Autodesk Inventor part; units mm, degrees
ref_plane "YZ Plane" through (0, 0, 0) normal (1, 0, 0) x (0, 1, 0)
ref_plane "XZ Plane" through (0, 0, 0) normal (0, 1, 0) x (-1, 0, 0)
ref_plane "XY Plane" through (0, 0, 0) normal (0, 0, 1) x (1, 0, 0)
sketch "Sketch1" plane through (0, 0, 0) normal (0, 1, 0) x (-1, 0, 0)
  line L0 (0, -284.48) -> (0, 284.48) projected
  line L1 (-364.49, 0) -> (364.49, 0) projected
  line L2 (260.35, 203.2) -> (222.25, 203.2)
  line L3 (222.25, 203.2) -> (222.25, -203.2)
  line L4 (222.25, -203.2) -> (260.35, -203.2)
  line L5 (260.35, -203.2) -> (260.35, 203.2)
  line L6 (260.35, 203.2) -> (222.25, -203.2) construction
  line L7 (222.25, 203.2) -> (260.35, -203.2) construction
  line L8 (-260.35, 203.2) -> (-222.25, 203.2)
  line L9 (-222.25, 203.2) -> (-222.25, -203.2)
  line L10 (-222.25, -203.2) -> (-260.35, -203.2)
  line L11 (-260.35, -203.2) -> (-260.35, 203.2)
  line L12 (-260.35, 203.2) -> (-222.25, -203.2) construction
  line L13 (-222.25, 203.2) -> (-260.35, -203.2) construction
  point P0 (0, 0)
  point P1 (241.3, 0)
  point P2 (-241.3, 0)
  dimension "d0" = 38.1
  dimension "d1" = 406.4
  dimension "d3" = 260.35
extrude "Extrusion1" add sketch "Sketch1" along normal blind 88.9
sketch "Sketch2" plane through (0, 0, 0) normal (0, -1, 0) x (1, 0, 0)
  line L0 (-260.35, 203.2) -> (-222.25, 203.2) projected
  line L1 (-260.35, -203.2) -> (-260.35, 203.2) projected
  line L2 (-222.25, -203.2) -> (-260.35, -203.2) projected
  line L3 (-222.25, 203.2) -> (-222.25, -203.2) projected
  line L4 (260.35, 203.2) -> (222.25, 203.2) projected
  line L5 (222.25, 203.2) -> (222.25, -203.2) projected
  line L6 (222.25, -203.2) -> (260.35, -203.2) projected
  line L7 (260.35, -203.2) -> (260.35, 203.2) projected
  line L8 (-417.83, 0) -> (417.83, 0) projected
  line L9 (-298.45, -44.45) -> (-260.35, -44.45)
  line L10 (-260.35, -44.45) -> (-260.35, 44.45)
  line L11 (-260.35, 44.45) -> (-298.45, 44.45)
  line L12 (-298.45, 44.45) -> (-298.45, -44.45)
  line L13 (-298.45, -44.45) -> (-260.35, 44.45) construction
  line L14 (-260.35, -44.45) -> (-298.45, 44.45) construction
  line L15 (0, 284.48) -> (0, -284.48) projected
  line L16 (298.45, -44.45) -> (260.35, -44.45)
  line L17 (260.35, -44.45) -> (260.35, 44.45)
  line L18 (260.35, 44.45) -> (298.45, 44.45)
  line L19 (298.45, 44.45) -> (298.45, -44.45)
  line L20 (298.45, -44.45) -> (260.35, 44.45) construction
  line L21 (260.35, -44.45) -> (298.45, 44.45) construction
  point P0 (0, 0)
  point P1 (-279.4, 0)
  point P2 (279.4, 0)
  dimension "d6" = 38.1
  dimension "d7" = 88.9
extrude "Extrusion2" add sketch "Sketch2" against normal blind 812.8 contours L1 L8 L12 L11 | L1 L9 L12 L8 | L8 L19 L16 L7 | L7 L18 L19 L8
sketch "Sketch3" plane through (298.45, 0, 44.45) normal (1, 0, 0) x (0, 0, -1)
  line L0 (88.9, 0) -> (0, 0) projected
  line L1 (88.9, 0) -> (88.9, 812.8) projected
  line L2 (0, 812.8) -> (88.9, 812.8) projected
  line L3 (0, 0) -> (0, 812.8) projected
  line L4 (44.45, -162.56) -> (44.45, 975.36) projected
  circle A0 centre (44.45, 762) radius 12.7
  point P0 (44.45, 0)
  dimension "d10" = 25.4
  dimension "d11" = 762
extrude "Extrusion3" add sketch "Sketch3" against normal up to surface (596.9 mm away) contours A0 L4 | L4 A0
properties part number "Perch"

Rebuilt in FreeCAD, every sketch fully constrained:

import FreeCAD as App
import Part
import Sketcher
Q = App.Units.Quantity


def add_polygon(sketch, points):
    """Adds a closed chain of lines whose ends are joined by coincident constraints."""
    first, n = sketch.GeometryCount, len(points)
    for a, b in zip(points, points[1:] + points[:1]):
        sketch.addGeometry(Part.LineSegment(App.Vector(*a, 0), App.Vector(*b, 0)), False)
    for i in range(n):
        sketch.addConstraint(Sketcher.Constraint("Coincident", first + i, 2, first + (i + 1) % n, 1))

doc = App.newDocument("Part")
body = doc.addObject("PartDesign::Body", "Body")
body.AllowCompound = True

# Sketch on XZ plane
sketch1 = doc.addObject("Sketcher::SketchObject", "Sketch")
body.addObject(sketch1)
sketch1.AttachmentSupport = (doc.XZ_Plane, [""])
sketch1.MapMode = "FlatFace"
add_polygon(sketch1, [(260.35, 203.2), (260.35, -203.2), (222.25, -203.2), (222.25, 203.2)])  # lines 0-3
add_polygon(sketch1, [(-222.25, 203.2), (-222.25, -203.2), (-260.35, -203.2), (-260.35, 203.2)])  # lines 4-7
sketch1.addConstraint([
    Sketcher.Constraint("Vertical", 0),
    Sketcher.Constraint("Horizontal", 1),
    Sketcher.Constraint("Vertical", 2),
    Sketcher.Constraint("Horizontal", 3),
    Sketcher.Constraint("Vertical", 4),
    Sketcher.Constraint("Horizontal", 5),
    Sketcher.Constraint("Vertical", 6),
    Sketcher.Constraint("Horizontal", 7),
    Sketcher.Constraint("Symmetric", 2, 2, 4, 2, -1, 1),
    Sketcher.Constraint("Symmetric", 0, 2, 6, 2, -1, 1),
    Sketcher.Constraint("Horizontal", 1, 2, 4, 2),
    Sketcher.Constraint("DistanceY", 0, 2, 0, 1, Q("16 in")),
    Sketcher.Constraint("DistanceX", 1, 2, 1, 1, Q("1.5 in")),
    Sketcher.Constraint("DistanceX", -1, 1, 0, 2, Q("10.25 in")),
])
pad1 = doc.addObject("PartDesign::Pad", "Pad")
body.addObject(pad1)
pad1.Profile = sketch1
pad1.Length = Q("3.5 in")
pad1.Reversed = True

# Sketch on XZ plane
sketch2 = doc.addObject("Sketcher::SketchObject", "Sketch001")
body.addObject(sketch2)
sketch2.AttachmentSupport = (doc.XZ_Plane, [""])
sketch2.MapMode = "FlatFace"
add_polygon(sketch2, [(-260.35, 44.45), (-298.45, 44.45), (-298.45, -44.45), (-260.35, -44.45)])  # lines 0-3
add_polygon(sketch2, [(298.45, -44.45), (298.45, 44.45), (260.35, 44.45), (260.35, -44.45)])  # lines 4-7
sketch2.addConstraint([
    Sketcher.Constraint("Horizontal", 0),
    Sketcher.Constraint("Vertical", 1),
    Sketcher.Constraint("Horizontal", 2),
    Sketcher.Constraint("Vertical", 3),
    Sketcher.Constraint("Vertical", 4),
    Sketcher.Constraint("Horizontal", 5),
    Sketcher.Constraint("Vertical", 6),
    Sketcher.Constraint("Horizontal", 7),
    Sketcher.Constraint("Symmetric", 1, 2, 4, 2, -1, 1),
    Sketcher.Constraint("Symmetric", 3, 2, 6, 2, -1, 1),
    Sketcher.Constraint("Horizontal", 3, 2, 4, 2),
    Sketcher.Constraint("DistanceX", 0, 2, 0, 1, Q("1.5 in")),
    Sketcher.Constraint("DistanceY", 1, 2, 1, 1, Q("3.5 in")),
    Sketcher.Constraint("DistanceX", 3, 2, 4, 2, Q("22 in")),
])
pad2 = doc.addObject("PartDesign::Pad", "Pad001")
body.addObject(pad2)
pad2.Profile = sketch2
pad2.Length = Q("32 in")
pad2.Reversed = True

# Sketch on YZ plane
sketch3 = doc.addObject("Sketcher::SketchObject", "Sketch002")
body.addObject(sketch3)
sketch3.AttachmentSupport = (doc.YZ_Plane, [""])
sketch3.MapMode = "FlatFace"
sketch3.AttachmentOffset = App.Placement(App.Vector(0, 0, 11.75 * 25.4), App.Rotation())
sketch3.addGeometry(Part.Circle(App.Vector(762, 0, 0), App.Vector(0, 0, 1), 12.7), False)
sketch3.addConstraint([
    Sketcher.Constraint("PointOnObject", 0, 3, -1),
    Sketcher.Constraint("Diameter", 0, Q("1 in")),
    Sketcher.Constraint("DistanceX", -1, 1, 0, 3, Q("30 in")),
])
pad3 = doc.addObject("PartDesign::Pad", "Pad002")
body.addObject(pad3)
pad3.Profile = sketch3
pad3.Length = Q("23.5 in")
pad3.Reversed = True

doc.recompute()
